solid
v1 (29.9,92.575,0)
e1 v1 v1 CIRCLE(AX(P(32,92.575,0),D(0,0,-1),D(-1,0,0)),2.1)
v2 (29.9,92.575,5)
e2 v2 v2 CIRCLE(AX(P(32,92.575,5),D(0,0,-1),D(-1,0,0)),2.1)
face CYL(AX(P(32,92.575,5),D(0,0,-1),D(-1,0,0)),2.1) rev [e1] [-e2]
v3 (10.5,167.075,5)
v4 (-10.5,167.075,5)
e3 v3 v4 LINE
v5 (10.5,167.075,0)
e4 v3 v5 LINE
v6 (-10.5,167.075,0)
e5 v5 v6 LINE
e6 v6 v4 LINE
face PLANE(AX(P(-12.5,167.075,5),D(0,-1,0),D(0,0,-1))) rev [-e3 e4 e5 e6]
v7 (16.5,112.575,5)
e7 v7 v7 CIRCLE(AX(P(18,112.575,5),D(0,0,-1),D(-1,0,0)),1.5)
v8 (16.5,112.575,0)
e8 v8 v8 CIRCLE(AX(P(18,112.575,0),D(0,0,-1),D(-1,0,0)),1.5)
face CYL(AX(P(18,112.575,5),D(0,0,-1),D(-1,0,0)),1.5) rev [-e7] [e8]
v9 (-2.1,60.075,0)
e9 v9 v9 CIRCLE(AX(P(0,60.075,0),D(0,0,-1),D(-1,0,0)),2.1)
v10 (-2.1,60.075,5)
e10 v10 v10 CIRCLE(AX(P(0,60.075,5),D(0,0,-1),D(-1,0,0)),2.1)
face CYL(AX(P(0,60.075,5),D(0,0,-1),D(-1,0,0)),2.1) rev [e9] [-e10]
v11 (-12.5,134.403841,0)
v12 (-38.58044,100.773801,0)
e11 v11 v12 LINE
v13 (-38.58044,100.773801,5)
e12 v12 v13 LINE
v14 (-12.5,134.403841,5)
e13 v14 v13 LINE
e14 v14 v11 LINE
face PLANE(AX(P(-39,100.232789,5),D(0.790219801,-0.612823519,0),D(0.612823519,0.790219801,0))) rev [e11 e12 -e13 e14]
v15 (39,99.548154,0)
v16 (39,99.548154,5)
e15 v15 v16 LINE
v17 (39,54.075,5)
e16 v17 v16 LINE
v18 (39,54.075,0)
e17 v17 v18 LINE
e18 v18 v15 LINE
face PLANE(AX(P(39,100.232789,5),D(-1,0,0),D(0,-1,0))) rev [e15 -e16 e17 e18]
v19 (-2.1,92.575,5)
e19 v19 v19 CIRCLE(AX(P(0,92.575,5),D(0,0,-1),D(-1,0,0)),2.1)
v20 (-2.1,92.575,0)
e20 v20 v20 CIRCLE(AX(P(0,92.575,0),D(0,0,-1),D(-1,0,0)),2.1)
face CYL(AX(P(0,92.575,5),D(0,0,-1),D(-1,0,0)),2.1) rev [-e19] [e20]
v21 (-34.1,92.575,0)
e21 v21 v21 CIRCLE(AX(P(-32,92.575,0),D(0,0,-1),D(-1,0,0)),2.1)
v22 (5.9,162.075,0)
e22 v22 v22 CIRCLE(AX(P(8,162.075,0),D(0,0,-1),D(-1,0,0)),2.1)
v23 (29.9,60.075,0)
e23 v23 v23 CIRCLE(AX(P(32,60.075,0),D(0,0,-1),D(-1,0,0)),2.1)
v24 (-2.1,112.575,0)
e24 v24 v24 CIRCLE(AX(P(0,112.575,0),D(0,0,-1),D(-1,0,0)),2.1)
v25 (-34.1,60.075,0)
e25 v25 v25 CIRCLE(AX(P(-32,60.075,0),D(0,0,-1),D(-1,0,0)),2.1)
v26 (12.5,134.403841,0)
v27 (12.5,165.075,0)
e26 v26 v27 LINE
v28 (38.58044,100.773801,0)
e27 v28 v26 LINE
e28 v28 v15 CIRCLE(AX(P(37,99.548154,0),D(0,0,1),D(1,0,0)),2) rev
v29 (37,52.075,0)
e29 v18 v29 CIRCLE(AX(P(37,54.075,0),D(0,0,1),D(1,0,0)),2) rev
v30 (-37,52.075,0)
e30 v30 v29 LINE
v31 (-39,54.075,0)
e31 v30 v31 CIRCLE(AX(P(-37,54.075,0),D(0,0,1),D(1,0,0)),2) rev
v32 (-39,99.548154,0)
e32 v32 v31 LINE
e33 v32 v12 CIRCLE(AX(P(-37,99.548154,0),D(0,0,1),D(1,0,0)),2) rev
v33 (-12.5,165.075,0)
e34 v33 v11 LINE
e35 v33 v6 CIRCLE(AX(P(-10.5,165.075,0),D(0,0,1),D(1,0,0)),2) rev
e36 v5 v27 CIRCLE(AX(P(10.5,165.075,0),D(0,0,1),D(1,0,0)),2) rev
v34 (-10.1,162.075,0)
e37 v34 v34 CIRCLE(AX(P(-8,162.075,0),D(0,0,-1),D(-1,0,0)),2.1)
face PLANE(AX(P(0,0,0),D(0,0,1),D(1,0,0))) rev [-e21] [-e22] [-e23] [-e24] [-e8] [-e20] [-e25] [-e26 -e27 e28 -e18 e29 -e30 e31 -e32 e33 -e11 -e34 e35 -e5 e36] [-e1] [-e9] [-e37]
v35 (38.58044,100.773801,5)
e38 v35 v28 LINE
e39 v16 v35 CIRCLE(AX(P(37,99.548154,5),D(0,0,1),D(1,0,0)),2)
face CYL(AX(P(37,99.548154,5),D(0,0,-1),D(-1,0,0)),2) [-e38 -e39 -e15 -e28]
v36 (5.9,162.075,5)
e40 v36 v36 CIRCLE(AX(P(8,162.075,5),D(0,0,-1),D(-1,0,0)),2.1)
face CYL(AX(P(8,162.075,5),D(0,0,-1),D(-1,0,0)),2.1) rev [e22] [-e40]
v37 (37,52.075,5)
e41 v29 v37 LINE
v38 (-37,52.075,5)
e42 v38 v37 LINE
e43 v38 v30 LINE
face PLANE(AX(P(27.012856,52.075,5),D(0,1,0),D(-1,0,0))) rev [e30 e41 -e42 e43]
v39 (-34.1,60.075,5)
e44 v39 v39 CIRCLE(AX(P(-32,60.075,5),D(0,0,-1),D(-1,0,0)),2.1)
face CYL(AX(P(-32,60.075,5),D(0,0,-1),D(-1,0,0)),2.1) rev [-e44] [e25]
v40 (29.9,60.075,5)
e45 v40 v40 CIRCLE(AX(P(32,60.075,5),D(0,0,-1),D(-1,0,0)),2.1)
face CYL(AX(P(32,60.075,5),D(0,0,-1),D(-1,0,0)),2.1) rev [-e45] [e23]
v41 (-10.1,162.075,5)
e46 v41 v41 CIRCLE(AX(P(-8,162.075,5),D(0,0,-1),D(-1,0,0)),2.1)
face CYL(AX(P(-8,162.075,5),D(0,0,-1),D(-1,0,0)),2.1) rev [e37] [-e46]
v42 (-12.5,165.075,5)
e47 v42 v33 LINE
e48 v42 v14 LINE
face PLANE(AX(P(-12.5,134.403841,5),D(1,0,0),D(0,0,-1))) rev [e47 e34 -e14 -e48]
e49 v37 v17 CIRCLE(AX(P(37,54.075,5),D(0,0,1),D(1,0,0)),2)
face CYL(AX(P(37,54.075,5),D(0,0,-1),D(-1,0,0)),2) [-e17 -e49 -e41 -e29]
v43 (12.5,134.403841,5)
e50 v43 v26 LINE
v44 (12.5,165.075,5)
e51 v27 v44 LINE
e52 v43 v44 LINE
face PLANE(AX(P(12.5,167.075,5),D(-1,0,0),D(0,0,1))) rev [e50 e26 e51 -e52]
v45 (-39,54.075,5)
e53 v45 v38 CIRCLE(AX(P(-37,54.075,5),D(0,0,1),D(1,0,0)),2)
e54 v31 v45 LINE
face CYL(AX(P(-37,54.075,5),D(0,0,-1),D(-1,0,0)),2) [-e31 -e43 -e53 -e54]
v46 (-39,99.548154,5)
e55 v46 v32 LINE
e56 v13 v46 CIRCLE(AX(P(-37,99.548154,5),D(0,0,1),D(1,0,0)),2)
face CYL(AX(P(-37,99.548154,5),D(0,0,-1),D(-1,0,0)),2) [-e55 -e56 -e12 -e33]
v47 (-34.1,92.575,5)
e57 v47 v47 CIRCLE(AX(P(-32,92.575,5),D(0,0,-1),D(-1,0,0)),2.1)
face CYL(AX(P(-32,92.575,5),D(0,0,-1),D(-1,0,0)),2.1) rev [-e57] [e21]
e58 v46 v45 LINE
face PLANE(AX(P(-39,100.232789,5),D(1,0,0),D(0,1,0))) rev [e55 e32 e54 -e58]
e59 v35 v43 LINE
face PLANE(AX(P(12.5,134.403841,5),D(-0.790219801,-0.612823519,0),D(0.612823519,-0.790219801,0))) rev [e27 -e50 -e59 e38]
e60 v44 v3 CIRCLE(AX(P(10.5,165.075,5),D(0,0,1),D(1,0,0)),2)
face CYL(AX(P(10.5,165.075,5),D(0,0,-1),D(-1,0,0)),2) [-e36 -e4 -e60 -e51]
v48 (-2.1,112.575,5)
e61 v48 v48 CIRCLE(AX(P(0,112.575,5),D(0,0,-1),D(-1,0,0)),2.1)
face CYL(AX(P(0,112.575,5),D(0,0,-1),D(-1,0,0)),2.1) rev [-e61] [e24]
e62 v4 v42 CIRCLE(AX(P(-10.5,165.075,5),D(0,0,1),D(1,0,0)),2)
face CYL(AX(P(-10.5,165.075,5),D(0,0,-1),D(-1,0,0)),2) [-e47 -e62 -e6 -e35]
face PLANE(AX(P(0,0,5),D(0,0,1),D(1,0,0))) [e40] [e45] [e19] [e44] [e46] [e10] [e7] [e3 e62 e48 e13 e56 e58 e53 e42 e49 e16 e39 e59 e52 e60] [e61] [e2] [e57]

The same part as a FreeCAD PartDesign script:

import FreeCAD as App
import Part
import Sketcher
from FreeCAD import Vector


def edges_at(feature, points):
    """Names of the edges that pass closest to the given points."""
    edges = feature.Shape.Edges
    near = lambda p: min(range(len(edges)), key=lambda i: edges[i].distToShape(Part.Vertex(*p))[0])
    return sorted({f"Edge{near(p) + 1}" for p in points})

doc = App.newDocument("Part")
params = doc.addObject("Spreadsheet::Sheet", "Params")
for row, (alias, value) in enumerate([
    ("sketch1_width", "78 mm"),
    ("sketch1_width2", "25 mm"),
    ("pad1_length", "5 mm"),
    ("sketch2_diameter", "3 mm"),
    ("sketch2_diameter2", "4.2 mm"),
    ("sketch3_diameter", "4.2 mm"),
    ("fillet_radius", "2 mm"),
], start=1):
    params.set(f"A{row}", alias)
    params.set(f"B{row}", "=" + value)
    params.setAlias(f"B{row}", alias)

body = doc.addObject("PartDesign::Body", "Body")

sketch1 = body.newObject("Sketcher::SketchObject", "Sketch")
sketch1.AttachmentSupport = (doc.getObject("XY_Plane"), [""])
sketch1.MapMode = "FlatFace"
sketch1.addGeometry(Part.LineSegment(Vector(-12, 134, 0), Vector(-39, 100, 0)), False)
sketch1.addGeometry(Part.LineSegment(Vector(-39, 100, 0), Vector(-39, 52, 0)), False)
sketch1.addGeometry(Part.LineSegment(Vector(-39, 52, 0), Vector(39, 52, 0)), False)
sketch1.addGeometry(Part.LineSegment(Vector(39, 52, 0), Vector(39, 100, 0)), False)
sketch1.addGeometry(Part.LineSegment(Vector(39, 100, 0), Vector(12, 134, 0)), False)
sketch1.addGeometry(Part.LineSegment(Vector(12, 134, 0), Vector(12, 167, 0)), False)
sketch1.addGeometry(Part.LineSegment(Vector(12, 167, 0), Vector(-12, 167, 0)), False)
sketch1.addGeometry(Part.LineSegment(Vector(-12, 167, 0), Vector(-12, 134, 0)), False)
sketch1.addConstraint(Sketcher.Constraint("Coincident", 0, 2, 1, 1))
sketch1.addConstraint(Sketcher.Constraint("Coincident", 1, 2, 2, 1))
sketch1.addConstraint(Sketcher.Constraint("Coincident", 2, 2, 3, 1))
sketch1.addConstraint(Sketcher.Constraint("Coincident", 3, 2, 4, 1))
sketch1.addConstraint(Sketcher.Constraint("Coincident", 4, 2, 5, 1))
sketch1.addConstraint(Sketcher.Constraint("Coincident", 5, 2, 6, 1))
sketch1.addConstraint(Sketcher.Constraint("Coincident", 6, 2, 7, 1))
sketch1.addConstraint(Sketcher.Constraint("Coincident", 7, 2, 0, 1))
sketch1.addConstraint(Sketcher.Constraint("Vertical", 1))
sketch1.addConstraint(Sketcher.Constraint("Horizontal", 2))
sketch1.addConstraint(Sketcher.Constraint("Vertical", 3))
sketch1.addConstraint(Sketcher.Constraint("Vertical", 5))
sketch1.addConstraint(Sketcher.Constraint("Horizontal", 6))
sketch1.addConstraint(Sketcher.Constraint("Vertical", 7))
sketch1.addConstraint(Sketcher.Constraint("Symmetric", 0, 2, 3, 2, -2))
sketch1.addConstraint(Sketcher.Constraint("Symmetric", 4, 2, 7, 2, -2))
sketch1.addConstraint(Sketcher.Constraint("DistanceX", 2, 1, 2, 2, 78.0))
sketch1.addConstraint(Sketcher.Constraint("DistanceX", 6, 2, 6, 1, 25.0))
sketch1.addConstraint(Sketcher.Constraint("DistanceY", 2, 2, 5, 2, 115.0))
sketch1.addConstraint(Sketcher.Constraint("DistanceY", -1, 1, 1, 2, 52.075))
sketch1.addConstraint(Sketcher.Constraint("DistanceY", 1, 2, 1, 1, 48.157789))
sketch1.addConstraint(Sketcher.Constraint("DistanceY", 5, 1, 5, 2, 32.671159))
sketch1.setExpression("Constraints[16]", "Params.sketch1_width")
sketch1.setExpression("Constraints[17]", "Params.sketch1_width2")
pad1 = body.newObject("PartDesign::Pad", "Pad")
pad1.Profile = sketch1
pad1.setExpression("Length", "Params.pad1_length")

sketch2 = body.newObject("Sketcher::SketchObject", "Sketch001")
sketch2.AttachmentSupport = (doc.getObject("XY_Plane"), [""])
sketch2.MapMode = "FlatFace"
sketch2.addGeometry(Part.Circle(Vector(32, 92.6, 0), Vector(0, 0, 1), 2.1), False)
sketch2.addGeometry(Part.Circle(Vector(-32, 92.6, 0), Vector(0, 0, 1), 2.1), False)
sketch2.addGeometry(Part.Circle(Vector(-8, 162.1, 0), Vector(0, 0, 1), 2.1), False)
sketch2.addGeometry(Part.Circle(Vector(8, 162.1, 0), Vector(0, 0, 1), 2.1), False)
sketch2.addGeometry(Part.Circle(Vector(18, 112.6, 0), Vector(0, 0, 1), 1.5), False)
sketch2.addConstraint(Sketcher.Constraint("Equal", 0, 1))
sketch2.addConstraint(Sketcher.Constraint("Equal", 1, 2))
sketch2.addConstraint(Sketcher.Constraint("Equal", 2, 3))
sketch2.addConstraint(Sketcher.Constraint("Symmetric", 0, 3, 1, 3, -2))
sketch2.addConstraint(Sketcher.Constraint("Symmetric", 2, 3, 3, 3, -2))
sketch2.addConstraint(Sketcher.Constraint("Diameter", 4, 3.0))
sketch2.addConstraint(Sketcher.Constraint("Diameter", 0, 4.2))
sketch2.addConstraint(Sketcher.Constraint("DistanceX", -1, 1, 0, 3, 32.0))
sketch2.addConstraint(Sketcher.Constraint("DistanceX", 2, 3, -1, 1, 8.0))
sketch2.addConstraint(Sketcher.Constraint("DistanceX", -1, 1, 4, 3, 18.0))
sketch2.addConstraint(Sketcher.Constraint("DistanceY", 0, 3, 4, 3, 20.0))
sketch2.addConstraint(Sketcher.Constraint("DistanceY", 1, 3, 2, 3, 69.5))
sketch2.addConstraint(Sketcher.Constraint("DistanceY", -1, 1, 0, 3, 92.575))
sketch2.setExpression("Constraints[5]", "Params.sketch2_diameter")
sketch2.setExpression("Constraints[6]", "Params.sketch2_diameter2")
pocket1 = body.newObject("PartDesign::Pocket", "Pocket")
pocket1.Profile = sketch2
pocket1.Type = "ThroughAll"
pocket1.Reversed = True

sketch3 = body.newObject("Sketcher::SketchObject", "Sketch002")
sketch3.AttachmentSupport = (doc.getObject("XY_Plane"), [""])
sketch3.MapMode = "FlatFace"
sketch3.addGeometry(Part.Circle(Vector(32, 60.1, 0), Vector(0, 0, 1), 2.1), False)
sketch3.addGeometry(Part.Circle(Vector(-32, 60.1, 0), Vector(0, 0, 1), 2.1), False)
sketch3.addGeometry(Part.Circle(Vector(0, 60.1, 0), Vector(0, 0, 1), 2.1), False)
sketch3.addGeometry(Part.Circle(Vector(0, 112.6, 0), Vector(0, 0, 1), 2.1), False)
sketch3.addGeometry(Part.Circle(Vector(0, 92.6, 0), Vector(0, 0, 1), 2.1), False)
sketch3.addConstraint(Sketcher.Constraint("Equal", 0, 1))
sketch3.addConstraint(Sketcher.Constraint("Equal", 1, 2))
sketch3.addConstraint(Sketcher.Constraint("Equal", 2, 3))
sketch3.addConstraint(Sketcher.Constraint("Equal", 3, 4))
sketch3.addConstraint(Sketcher.Constraint("Symmetric", 0, 3, 1, 3, -2))
sketch3.addConstraint(Sketcher.Constraint("PointOnObject", 2, 3, -2))
sketch3.addConstraint(Sketcher.Constraint("PointOnObject", 3, 3, -2))
sketch3.addConstraint(Sketcher.Constraint("PointOnObject", 4, 3, -2))
sketch3.addConstraint(Sketcher.Constraint("Horizontal", 1, 3, 2, 3))
sketch3.addConstraint(Sketcher.Constraint("Diameter", 0, 4.2))
sketch3.addConstraint(Sketcher.Constraint("DistanceX", -1, 1, 0, 3, 32.0))
sketch3.addConstraint(Sketcher.Constraint("DistanceY", 4, 3, 3, 3, 20.0))
sketch3.addConstraint(Sketcher.Constraint("DistanceY", 2, 3, 3, 3, 52.5))
sketch3.addConstraint(Sketcher.Constraint("DistanceY", -1, 1, 0, 3, 60.075))
sketch3.setExpression("Constraints[9]", "Params.sketch3_diameter")
pocket2 = body.newObject("PartDesign::Pocket", "Pocket001")
pocket2.Profile = sketch3
pocket2.Type = "ThroughAll"
pocket2.Reversed = True
doc.recompute()

fillet = body.newObject("PartDesign::Fillet", "Fillet")
fillet.Base = (pocket2, edges_at(pocket2, [
    (-39, 100.233, 2.5),
    (-12.5, 167.075, 2.5),
    (12.5, 167.075, 2.5),
    (39, 100.233, 2.5),
    (39, 52.075, 2.5),
    (-39, 52.075, 2.5),
]))
fillet.setExpression("Radius", "Params.fillet_radius")

doc.recompute()
